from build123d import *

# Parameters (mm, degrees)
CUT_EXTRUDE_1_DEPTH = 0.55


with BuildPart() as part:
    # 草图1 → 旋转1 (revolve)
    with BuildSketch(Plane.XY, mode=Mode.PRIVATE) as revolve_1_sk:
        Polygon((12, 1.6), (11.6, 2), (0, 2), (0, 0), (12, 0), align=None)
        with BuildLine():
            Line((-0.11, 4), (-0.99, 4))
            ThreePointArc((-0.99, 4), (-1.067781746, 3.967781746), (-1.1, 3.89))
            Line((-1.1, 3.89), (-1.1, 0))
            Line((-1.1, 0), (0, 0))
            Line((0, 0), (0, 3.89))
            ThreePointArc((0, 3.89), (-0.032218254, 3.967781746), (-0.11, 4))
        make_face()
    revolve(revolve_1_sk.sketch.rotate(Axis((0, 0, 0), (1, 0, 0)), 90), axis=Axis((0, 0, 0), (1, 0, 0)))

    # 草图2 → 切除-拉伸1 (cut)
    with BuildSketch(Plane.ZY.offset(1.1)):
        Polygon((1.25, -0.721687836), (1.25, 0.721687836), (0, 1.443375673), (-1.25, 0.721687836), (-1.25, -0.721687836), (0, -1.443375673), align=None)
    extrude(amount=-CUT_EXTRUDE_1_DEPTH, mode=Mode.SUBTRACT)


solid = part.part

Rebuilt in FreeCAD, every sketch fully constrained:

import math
import FreeCAD as App
import Part
import Sketcher

V = App.Vector
Q = App.Units.Quantity

doc = App.newDocument("Part")
body = doc.addObject("PartDesign::Body", "Body")

# Sketch on XY plane
sketch1 = body.newObject("Sketcher::SketchObject", "Sketch")
sketch1.AttachmentSupport = (doc.getObject("XY_Plane"), [""])
sketch1.MapMode = "FlatFace"
sketch1.addGeometry([
    Part.LineSegment(V(12, 1.6, 0), V(11.6, 2, 0)),  # 0
    Part.LineSegment(V(11.6, 2, 0), V(0, 2, 0)),  # 1
    Part.LineSegment(V(0, 2, 0), V(0, 3.89, 0)),  # 2
    Part.ArcOfCircle(Part.Circle(V(-0.11, 3.89, 0), V(0, 0, 1), 0.11), math.radians(0), math.radians(90)),  # 3
    Part.LineSegment(V(-0.11, 4, 0), V(-0.99, 4, 0)),  # 4
    Part.ArcOfCircle(Part.Circle(V(-0.99, 3.89, 0), V(0, 0, 1), 0.11), math.radians(90), math.radians(180)),  # 5
    Part.LineSegment(V(-1.1, 3.89, 0), V(-1.1, 0, 0)),  # 6
    Part.LineSegment(V(-1.1, 0, 0), V(12, 0, 0)),  # 7
    Part.LineSegment(V(12, 0, 0), V(12, 1.6, 0)),  # 8
], False)
sketch1.addConstraint([
    Sketcher.Constraint("Coincident", 0, 2, 1, 1),
    Sketcher.Constraint("Coincident", 1, 2, 2, 1),
    Sketcher.Constraint("Tangent", 2, 2, 3, 1),
    Sketcher.Constraint("Tangent", 3, 2, 4, 1),
    Sketcher.Constraint("Tangent", 4, 2, 5, 1),
    Sketcher.Constraint("Tangent", 5, 2, 6, 1),
    Sketcher.Constraint("Coincident", 6, 2, 7, 1),
    Sketcher.Constraint("Coincident", 7, 2, 8, 1),
    Sketcher.Constraint("Coincident", 8, 2, 0, 1),
    Sketcher.Constraint("Horizontal", 1),
    Sketcher.Constraint("Vertical", 2),
    Sketcher.Constraint("Horizontal", 4),
    Sketcher.Constraint("Vertical", 6),
    Sketcher.Constraint("Horizontal", 7),
    Sketcher.Constraint("Vertical", 8),
    Sketcher.Constraint("Equal", 3, 5),
    Sketcher.Constraint("PointOnObject", 1, 2, -2),
    Sketcher.Constraint("PointOnObject", 6, 2, -1),
    Sketcher.Constraint("Angle", 0, Q("135 deg")),
    Sketcher.Constraint("Radius", 3, Q("0.11 mm")),
    Sketcher.Constraint("DistanceX", 1, 2, 1, 1, Q("11.6 mm")),
    Sketcher.Constraint("DistanceX", 7, 1, 7, 2, Q("13.1 mm")),
    Sketcher.Constraint("DistanceY", 8, 1, 8, 2, Q("1.6 mm")),
    Sketcher.Constraint("DistanceY", -1, 1, 0, 2, Q("2 mm")),
    Sketcher.Constraint("DistanceY", -1, 1, 3, 2, Q("4 mm")),
])
revolution = body.newObject("PartDesign::Revolution", "Revolution")
revolution.Profile = sketch1
revolution.ReferenceAxis = (sketch1, ["H_Axis"])
revolution.Angle = 360

# Sketch on YZ plane
sketch2 = body.newObject("Sketcher::SketchObject", "Sketch001")
sketch2.AttachmentSupport = (doc.getObject("YZ_Plane"), [""])
sketch2.MapMode = "FlatFace"
sketch2.AttachmentOffset = App.Placement(V(0, 0, -1.1), App.Rotation())
sketch2.addGeometry([
    Part.LineSegment(V(-0.7, 1.2, 0), V(0.7, 1.2, 0)),  # 0
    Part.LineSegment(V(0.7, 1.2, 0), V(1.4, 0, 0)),  # 1
    Part.LineSegment(V(1.4, 0, 0), V(0.7, -1.2, 0)),  # 2
    Part.LineSegment(V(0.7, -1.2, 0), V(-0.7, -1.2, 0)),  # 3
    Part.LineSegment(V(-0.7, -1.2, 0), V(-1.4, 0, 0)),  # 4
    Part.LineSegment(V(-1.4, 0, 0), V(-0.7, 1.2, 0)),  # 5
], False)
sketch2.addConstraint([
    Sketcher.Constraint("Coincident", 0, 2, 1, 1),
    Sketcher.Constraint("Coincident", 1, 2, 2, 1),
    Sketcher.Constraint("Coincident", 2, 2, 3, 1),
    Sketcher.Constraint("Coincident", 3, 2, 4, 1),
    Sketcher.Constraint("Coincident", 4, 2, 5, 1),
    Sketcher.Constraint("Coincident", 5, 2, 0, 1),
    Sketcher.Constraint("Horizontal", 0),
    Sketcher.Constraint("Horizontal", 3),
    Sketcher.Constraint("Symmetric", 0, 2, 3, 2, -1, 1),
    Sketcher.Constraint("Symmetric", 1, 2, 4, 2, -1, 1),
    Sketcher.Constraint("PointOnObject", 1, 2, -1),
    Sketcher.Constraint("Parallel", 2, 5),
    Sketcher.Constraint("Vertical", 0, 2, 2, 2),
    Sketcher.Constraint("Angle", 1, Q("-60 deg")),
    Sketcher.Constraint("DistanceY", 2, 2, 0, 2, Q("2.5 mm")),
    Sketcher.Constraint("DistanceX", 0, 1, 0, 2, Q("1.443376 mm")),
])
pocket1 = body.newObject("PartDesign::Pocket", "Pocket")
pocket1.Profile = sketch2
pocket1.Length = 0.55
pocket1.Reversed = True

doc.recompute()
